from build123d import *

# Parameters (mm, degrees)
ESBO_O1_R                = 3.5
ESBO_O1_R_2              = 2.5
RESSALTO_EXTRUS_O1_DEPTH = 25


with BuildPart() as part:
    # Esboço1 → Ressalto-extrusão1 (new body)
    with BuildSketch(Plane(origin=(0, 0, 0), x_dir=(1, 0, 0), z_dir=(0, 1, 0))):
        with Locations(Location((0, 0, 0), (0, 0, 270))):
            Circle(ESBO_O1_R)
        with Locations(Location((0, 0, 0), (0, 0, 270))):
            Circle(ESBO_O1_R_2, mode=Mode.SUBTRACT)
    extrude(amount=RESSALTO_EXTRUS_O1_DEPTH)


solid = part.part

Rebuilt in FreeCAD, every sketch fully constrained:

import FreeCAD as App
import Part
import Sketcher

V = App.Vector
Q = App.Units.Quantity

doc = App.newDocument("Part")
body = doc.addObject("PartDesign::Body", "Body")

# Sketch on XZ plane
sketch1 = body.newObject("Sketcher::SketchObject", "Sketch")
sketch1.AttachmentSupport = (doc.getObject("XZ_Plane"), [""])
sketch1.MapMode = "FlatFace"
sketch1.addGeometry([
    Part.Circle(V(0, 0, 0), V(0, 0, 1), 3.5),
    Part.Circle(V(0, 0, 0), V(0, 0, 1), 2.5),
], False)
sketch1.addConstraint([
    Sketcher.Constraint("Coincident", 0, 3, -1, 1),
    Sketcher.Constraint("Coincident", 1, 3, -1, 1),
    Sketcher.Constraint("Diameter", 0, Q("7 mm")),
    Sketcher.Constraint("Diameter", 1, Q("5 mm")),
])
pad1 = body.newObject("PartDesign::Pad", "Pad")
pad1.Profile = sketch1
pad1.Length = 25
pad1.Reversed = True

doc.recompute()
